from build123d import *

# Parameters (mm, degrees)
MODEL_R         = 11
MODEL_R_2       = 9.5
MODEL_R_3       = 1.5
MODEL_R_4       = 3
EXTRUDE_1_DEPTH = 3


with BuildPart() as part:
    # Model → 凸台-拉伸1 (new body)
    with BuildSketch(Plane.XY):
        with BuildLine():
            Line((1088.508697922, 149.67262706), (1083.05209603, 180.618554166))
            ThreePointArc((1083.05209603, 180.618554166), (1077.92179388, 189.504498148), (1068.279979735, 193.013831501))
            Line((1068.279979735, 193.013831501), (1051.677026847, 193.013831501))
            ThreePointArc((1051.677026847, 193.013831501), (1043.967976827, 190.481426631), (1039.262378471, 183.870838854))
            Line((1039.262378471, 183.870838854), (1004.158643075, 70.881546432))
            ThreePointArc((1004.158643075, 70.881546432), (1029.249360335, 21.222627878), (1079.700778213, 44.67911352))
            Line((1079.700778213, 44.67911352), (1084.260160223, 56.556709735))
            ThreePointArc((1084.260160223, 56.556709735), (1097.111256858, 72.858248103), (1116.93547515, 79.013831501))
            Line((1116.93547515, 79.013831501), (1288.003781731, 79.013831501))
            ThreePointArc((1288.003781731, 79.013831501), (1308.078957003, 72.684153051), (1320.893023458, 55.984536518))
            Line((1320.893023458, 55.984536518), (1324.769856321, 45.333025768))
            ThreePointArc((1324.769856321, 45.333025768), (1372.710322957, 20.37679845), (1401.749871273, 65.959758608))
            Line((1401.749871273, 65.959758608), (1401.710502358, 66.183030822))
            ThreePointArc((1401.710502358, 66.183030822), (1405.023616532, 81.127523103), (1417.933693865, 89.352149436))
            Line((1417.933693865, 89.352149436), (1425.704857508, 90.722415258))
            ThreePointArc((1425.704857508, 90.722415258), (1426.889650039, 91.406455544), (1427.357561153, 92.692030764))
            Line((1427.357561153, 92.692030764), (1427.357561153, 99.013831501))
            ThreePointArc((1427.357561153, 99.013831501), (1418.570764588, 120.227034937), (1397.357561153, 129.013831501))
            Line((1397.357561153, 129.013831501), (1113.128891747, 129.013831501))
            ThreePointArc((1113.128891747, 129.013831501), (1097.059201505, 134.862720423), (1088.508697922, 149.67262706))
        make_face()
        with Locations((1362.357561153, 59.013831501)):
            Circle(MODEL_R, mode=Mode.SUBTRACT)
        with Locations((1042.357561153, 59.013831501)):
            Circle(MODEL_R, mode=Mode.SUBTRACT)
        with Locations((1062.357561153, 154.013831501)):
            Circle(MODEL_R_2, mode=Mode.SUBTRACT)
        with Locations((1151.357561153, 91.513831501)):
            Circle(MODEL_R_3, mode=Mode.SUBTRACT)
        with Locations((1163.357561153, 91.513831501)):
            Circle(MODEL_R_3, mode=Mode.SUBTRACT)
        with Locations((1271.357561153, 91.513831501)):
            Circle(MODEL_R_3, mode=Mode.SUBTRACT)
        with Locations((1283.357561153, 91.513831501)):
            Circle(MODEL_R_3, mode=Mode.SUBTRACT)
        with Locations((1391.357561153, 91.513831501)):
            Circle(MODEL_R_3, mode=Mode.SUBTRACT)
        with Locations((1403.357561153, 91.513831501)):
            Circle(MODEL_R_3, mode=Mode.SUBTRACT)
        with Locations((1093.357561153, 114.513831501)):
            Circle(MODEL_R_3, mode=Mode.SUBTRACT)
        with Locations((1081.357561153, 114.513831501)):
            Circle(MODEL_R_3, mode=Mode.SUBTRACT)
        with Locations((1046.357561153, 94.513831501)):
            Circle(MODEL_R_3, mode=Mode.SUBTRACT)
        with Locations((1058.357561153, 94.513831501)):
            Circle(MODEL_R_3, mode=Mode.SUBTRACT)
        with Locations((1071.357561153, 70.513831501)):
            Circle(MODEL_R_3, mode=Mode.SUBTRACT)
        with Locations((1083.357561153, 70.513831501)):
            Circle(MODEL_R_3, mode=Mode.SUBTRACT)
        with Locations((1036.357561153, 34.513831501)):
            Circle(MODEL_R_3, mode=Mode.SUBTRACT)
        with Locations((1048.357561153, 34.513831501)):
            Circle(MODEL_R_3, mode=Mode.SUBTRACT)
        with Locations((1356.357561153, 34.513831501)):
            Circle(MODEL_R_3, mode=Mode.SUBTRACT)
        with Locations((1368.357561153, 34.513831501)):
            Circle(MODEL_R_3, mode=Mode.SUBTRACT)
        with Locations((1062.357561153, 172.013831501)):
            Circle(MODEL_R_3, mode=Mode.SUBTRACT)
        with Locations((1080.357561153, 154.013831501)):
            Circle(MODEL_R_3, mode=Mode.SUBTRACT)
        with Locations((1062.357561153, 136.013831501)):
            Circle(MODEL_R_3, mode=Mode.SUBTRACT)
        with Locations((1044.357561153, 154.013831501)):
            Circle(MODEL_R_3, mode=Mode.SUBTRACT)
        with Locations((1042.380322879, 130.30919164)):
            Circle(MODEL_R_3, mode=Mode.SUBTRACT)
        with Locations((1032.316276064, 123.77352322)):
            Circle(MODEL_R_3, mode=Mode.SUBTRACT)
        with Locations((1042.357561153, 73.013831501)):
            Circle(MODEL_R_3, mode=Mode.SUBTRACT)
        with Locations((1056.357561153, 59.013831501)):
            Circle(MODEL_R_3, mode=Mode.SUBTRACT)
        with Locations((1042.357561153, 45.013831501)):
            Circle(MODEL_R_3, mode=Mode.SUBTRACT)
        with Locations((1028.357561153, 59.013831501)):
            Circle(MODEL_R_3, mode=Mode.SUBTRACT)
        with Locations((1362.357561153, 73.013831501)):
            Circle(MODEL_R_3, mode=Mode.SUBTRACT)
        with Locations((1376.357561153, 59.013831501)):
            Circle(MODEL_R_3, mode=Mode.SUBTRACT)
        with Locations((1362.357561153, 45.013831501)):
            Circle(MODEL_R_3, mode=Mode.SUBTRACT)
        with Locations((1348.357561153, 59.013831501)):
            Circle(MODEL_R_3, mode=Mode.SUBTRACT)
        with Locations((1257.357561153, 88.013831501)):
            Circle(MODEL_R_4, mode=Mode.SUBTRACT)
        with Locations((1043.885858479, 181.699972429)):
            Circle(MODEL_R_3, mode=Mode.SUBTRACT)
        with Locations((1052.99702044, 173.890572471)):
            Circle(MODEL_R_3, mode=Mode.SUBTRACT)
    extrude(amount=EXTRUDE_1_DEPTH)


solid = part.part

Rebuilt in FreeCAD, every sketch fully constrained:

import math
import FreeCAD as App
import Part
import Sketcher
Q = App.Units.Quantity

doc = App.newDocument("Part")
params = doc.addObject("Spreadsheet::Sheet", "Params")
for row, (alias, value) in enumerate([
    ("sketch1_diameter", "3 mm"),
    ("sketch1_diameter2", "22 mm"),
    ("sketch1_diameter3", "6 mm"),
    ("sketch1_diameter4", "19 mm"),
    ("sketch1_radius", "15 mm"),
    ("pad1_length", "3 mm"),
], start=1):
    params.set(f"A{row}", alias)
    params.set(f"B{row}", "=" + value)
    params.setAlias(f"B{row}", alias)

body = doc.addObject("PartDesign::Body", "Body")

sketch1 = body.newObject("Sketcher::SketchObject", "Sketch")
sketch1.AttachmentSupport = (doc.getObject("XY_Plane"), [""])
sketch1.MapMode = "FlatFace"
sketch1.addGeometry([
    Part.LineSegment(App.Vector(1088.51, 149.67, 0), App.Vector(1083.05, 180.62, 0)),
    Part.ArcOfCircle(Part.Circle(App.Vector(1068.28, 178.01, 0), App.Vector(0, 0, 1), 15), math.radians(10), math.radians(90)),
    Part.LineSegment(App.Vector(1068.28, 193.01, 0), App.Vector(1051.68, 193.01, 0)),
    Part.ArcOfCircle(Part.Circle(App.Vector(1051.68, 180.01, 0), App.Vector(0, 0, 1), 13), math.radians(90), math.radians(163)),
    Part.LineSegment(App.Vector(1039.26, 183.87, 0), App.Vector(1004.16, 70.88, 0)),
    Part.ArcOfCircle(Part.Circle(App.Vector(1042.36, 59.01, 0), App.Vector(0, 0, 1), 40), math.radians(163), math.radians(339)),
    Part.LineSegment(App.Vector(1079.7, 44.68, 0), App.Vector(1084.26, 56.56, 0)),
    Part.ArcOfCircle(Part.Circle(App.Vector(1116.94, 44.01, 0), App.Vector(0, 0, 1), 35), math.radians(90), math.radians(159)),
    Part.LineSegment(App.Vector(1116.94, 79.01, 0), App.Vector(1288, 79.01, 0)),
    Part.ArcOfCircle(Part.Circle(App.Vector(1288, 44.01, 0), App.Vector(0, 0, 1), 35), math.radians(20), math.radians(90)),
    Part.LineSegment(App.Vector(1320.89, 55.98, 0), App.Vector(1324.77, 45.33, 0)),
    Part.ArcOfCircle(Part.Circle(App.Vector(1362.36, 59.01, 0), App.Vector(0, 0, 1), 40), math.radians(-160), math.radians(10)),
    Part.LineSegment(App.Vector(1401.75, 65.96, 0), App.Vector(1401.71, 66.18, 0)),
    Part.ArcOfCircle(Part.Circle(App.Vector(1421.41, 69.66, 0), App.Vector(0, 0, 1), 20), math.radians(100), math.radians(190)),
    Part.LineSegment(App.Vector(1417.93, 89.35, 0), App.Vector(1425.7, 90.72, 0)),
    Part.ArcOfCircle(Part.Circle(App.Vector(1425.36, 92.69, 0), App.Vector(0, 0, 1), 2), math.radians(-80), math.radians(0)),
    Part.LineSegment(App.Vector(1427.36, 92.69, 0), App.Vector(1427.36, 99.01, 0)),
    Part.ArcOfCircle(Part.Circle(App.Vector(1397.36, 99.01, 0), App.Vector(0, 0, 1), 30), math.radians(0), math.radians(90)),
    Part.LineSegment(App.Vector(1397.36, 129.01, 0), App.Vector(1113.13, 129.01, 0)),
    Part.ArcOfCircle(Part.Circle(App.Vector(1113.13, 154.01, 0), App.Vector(0, 0, 1), 25), math.radians(-170), math.radians(-90)),
    Part.Circle(App.Vector(1036.36, 34.51, 0), App.Vector(0, 0, 1), 1.5),
    Part.Circle(App.Vector(1048.36, 34.51, 0), App.Vector(0, 0, 1), 1.5),
    Part.Circle(App.Vector(1042.36, 45.01, 0), App.Vector(0, 0, 1), 1.5),
    Part.Circle(App.Vector(1028.36, 59.01, 0), App.Vector(0, 0, 1), 1.5),
    Part.Circle(App.Vector(1042.36, 59.01, 0), App.Vector(0, 0, 1), 11),
    Part.Circle(App.Vector(1056.36, 59.01, 0), App.Vector(0, 0, 1), 1.5),
    Part.Circle(App.Vector(1071.36, 70.51, 0), App.Vector(0, 0, 1), 1.5),
    Part.Circle(App.Vector(1083.36, 70.51, 0), App.Vector(0, 0, 1), 1.5),
    Part.Circle(App.Vector(1042.36, 73.01, 0), App.Vector(0, 0, 1), 1.5),
    Part.Circle(App.Vector(1046.36, 94.51, 0), App.Vector(0, 0, 1), 1.5),
    Part.Circle(App.Vector(1058.36, 94.51, 0), App.Vector(0, 0, 1), 1.5),
    Part.Circle(App.Vector(1151.36, 91.51, 0), App.Vector(0, 0, 1), 1.5),
    Part.Circle(App.Vector(1163.36, 91.51, 0), App.Vector(0, 0, 1), 1.5),
    Part.Circle(App.Vector(1356.36, 34.51, 0), App.Vector(0, 0, 1), 1.5),
    Part.Circle(App.Vector(1368.36, 34.51, 0), App.Vector(0, 0, 1), 1.5),
    Part.Circle(App.Vector(1362.36, 45.01, 0), App.Vector(0, 0, 1), 1.5),
    Part.Circle(App.Vector(1348.36, 59.01, 0), App.Vector(0, 0, 1), 1.5),
    Part.Circle(App.Vector(1362.36, 59.01, 0), App.Vector(0, 0, 1), 11),
    Part.Circle(App.Vector(1376.36, 59.01, 0), App.Vector(0, 0, 1), 1.5),
    Part.Circle(App.Vector(1257.36, 88.01, 0), App.Vector(0, 0, 1), 3),
    Part.Circle(App.Vector(1271.36, 91.51, 0), App.Vector(0, 0, 1), 1.5),
    Part.Circle(App.Vector(1283.36, 91.51, 0), App.Vector(0, 0, 1), 1.5),
    Part.Circle(App.Vector(1362.36, 73.01, 0), App.Vector(0, 0, 1), 1.5),
    Part.Circle(App.Vector(1391.36, 91.51, 0), App.Vector(0, 0, 1), 1.5),
    Part.Circle(App.Vector(1403.36, 91.51, 0), App.Vector(0, 0, 1), 1.5),
    Part.Circle(App.Vector(1032.32, 123.77, 0), App.Vector(0, 0, 1), 1.5),
    Part.Circle(App.Vector(1081.36, 114.51, 0), App.Vector(0, 0, 1), 1.5),
    Part.Circle(App.Vector(1093.36, 114.51, 0), App.Vector(0, 0, 1), 1.5),
    Part.Circle(App.Vector(1042.38, 130.31, 0), App.Vector(0, 0, 1), 1.5),
    Part.Circle(App.Vector(1062.36, 136.01, 0), App.Vector(0, 0, 1), 1.5),
    Part.Circle(App.Vector(1044.36, 154.01, 0), App.Vector(0, 0, 1), 1.5),
    Part.Circle(App.Vector(1062.36, 154.01, 0), App.Vector(0, 0, 1), 9.5),
    Part.Circle(App.Vector(1080.36, 154.01, 0), App.Vector(0, 0, 1), 1.5),
    Part.Circle(App.Vector(1062.36, 172.01, 0), App.Vector(0, 0, 1), 1.5),
    Part.Circle(App.Vector(1043.89, 181.7, 0), App.Vector(0, 0, 1), 1.5),
    Part.Circle(App.Vector(1053, 173.89, 0), App.Vector(0, 0, 1), 1.5),
], False)
sketch1.addConstraint([
    Sketcher.Constraint("Tangent", 0, 2, 1, 1),
    Sketcher.Constraint("Tangent", 1, 2, 2, 1),
    Sketcher.Constraint("Tangent", 2, 2, 3, 1),
    Sketcher.Constraint("Tangent", 3, 2, 4, 1),
    Sketcher.Constraint("Tangent", 4, 2, 5, 1),
    Sketcher.Constraint("Tangent", 5, 2, 6, 1),
    Sketcher.Constraint("Tangent", 6, 2, 7, 2),
    Sketcher.Constraint("Tangent", 7, 1, 8, 1),
    Sketcher.Constraint("Tangent", 8, 2, 9, 2),
    Sketcher.Constraint("Tangent", 9, 1, 10, 1),
    Sketcher.Constraint("Tangent", 10, 2, 11, 1),
    Sketcher.Constraint("Tangent", 11, 2, 12, 1),
    Sketcher.Constraint("Tangent", 12, 2, 13, 2),
    Sketcher.Constraint("Tangent", 13, 1, 14, 1),
    Sketcher.Constraint("Tangent", 14, 2, 15, 1),
    Sketcher.Constraint("Tangent", 15, 2, 16, 1),
    Sketcher.Constraint("Tangent", 16, 2, 17, 1),
    Sketcher.Constraint("Tangent", 17, 2, 18, 1),
    Sketcher.Constraint("Tangent", 18, 2, 19, 2),
    Sketcher.Constraint("Tangent", 19, 1, 0, 1),
    Sketcher.Constraint("Horizontal", 2),
    Sketcher.Constraint("Horizontal", 8),
    Sketcher.Constraint("Vertical", 16),
    Sketcher.Constraint("Horizontal", 18),
    Sketcher.Constraint("Coincident", 24, 3, 5, 3),
    Sketcher.Constraint("Coincident", 37, 3, 11, 3),
    Sketcher.Constraint("Equal", 7, 9),
    Sketcher.Constraint("Equal", 5, 11),
    Sketcher.Constraint("Equal", 20, 21),
    Sketcher.Constraint("Equal", 21, 22),
    Sketcher.Constraint("Equal", 22, 23),
    Sketcher.Constraint("Equal", 23, 25),
    Sketcher.Constraint("Equal", 25, 26),
    Sketcher.Constraint("Equal", 26, 27),
    Sketcher.Constraint("Equal", 27, 28),
    Sketcher.Constraint("Equal", 28, 29),
    Sketcher.Constraint("Equal", 29, 30),
    Sketcher.Constraint("Equal", 30, 31),
    Sketcher.Constraint("Equal", 31, 32),
    Sketcher.Constraint("Equal", 32, 33),
    Sketcher.Constraint("Equal", 33, 34),
    Sketcher.Constraint("Equal", 34, 35),
    Sketcher.Constraint("Equal", 35, 36),
    Sketcher.Constraint("Equal", 24, 37),
    Sketcher.Constraint("Equal", 36, 38),
    Sketcher.Constraint("Equal", 38, 40),
    Sketcher.Constraint("Equal", 40, 41),
    Sketcher.Constraint("Equal", 41, 42),
    Sketcher.Constraint("Equal", 42, 43),
    Sketcher.Constraint("Equal", 43, 44),
    Sketcher.Constraint("Equal", 44, 45),
    Sketcher.Constraint("Equal", 45, 46),
    Sketcher.Constraint("Equal", 46, 47),
    Sketcher.Constraint("Equal", 47, 48),
    Sketcher.Constraint("Equal", 48, 49),
    Sketcher.Constraint("Equal", 49, 50),
    Sketcher.Constraint("Equal", 50, 52),
    Sketcher.Constraint("Equal", 52, 53),
    Sketcher.Constraint("Equal", 53, 54),
    Sketcher.Constraint("Equal", 54, 55),
    Sketcher.Constraint("Parallel", 0, 12),
    Sketcher.Constraint("Perpendicular", 12, 14),
    Sketcher.Constraint("Horizontal", 5, 3, 11, 3),
    Sketcher.Constraint("Horizontal", 20, 3, 21, 3),
    Sketcher.Constraint("Horizontal", 11, 3, 23, 3),
    Sketcher.Constraint("Horizontal", 24, 3, 25, 3),
    Sketcher.Constraint("Horizontal", 26, 3, 27, 3),
    Sketcher.Constraint("Horizontal", 29, 3, 30, 3),
    Sketcher.Constraint("Horizontal", 31, 3, 32, 3),
    Sketcher.Constraint("Horizontal", 21, 3, 33, 3),
    Sketcher.Constraint("Horizontal", 33, 3, 34, 3),
    Sketcher.Constraint("Horizontal", 22, 3, 35, 3),
    Sketcher.Constraint("Horizontal", 25, 3, 36, 3),
    Sketcher.Constraint("Horizontal", 37, 3, 38, 3),
    Sketcher.Constraint("Horizontal", 32, 3, 40, 3),
    Sketcher.Constraint("Horizontal", 40, 3, 41, 3),
    Sketcher.Constraint("Horizontal", 28, 3, 42, 3),
    Sketcher.Constraint("Horizontal", 41, 3, 43, 3),
    Sketcher.Constraint("Horizontal", 43, 3, 44, 3),
    Sketcher.Constraint("Horizontal", 46, 3, 47, 3),
    Sketcher.Constraint("Horizontal", 19, 3, 50, 3),
    Sketcher.Constraint("Horizontal", 50, 3, 51, 3),
    Sketcher.Constraint("Horizontal", 51, 3, 52, 3),
    Sketcher.Constraint("Vertical", 5, 3, 22, 3),
    Sketcher.Constraint("Vertical", 24, 3, 28, 3),
    Sketcher.Constraint("Vertical", 11, 3, 35, 3),
    Sketcher.Constraint("Vertical", 37, 3, 42, 3),
    Sketcher.Constraint("Vertical", 49, 3, 51, 3),
    Sketcher.Constraint("Vertical", 51, 3, 53, 3),
    Sketcher.Constraint("Diameter", 20, Q("3 mm")),
    Sketcher.Constraint("Diameter", 24, Q("22 mm")),
    Sketcher.Constraint("Diameter", 39, Q("6 mm")),
    Sketcher.Constraint("Diameter", 51, Q("19 mm")),
    Sketcher.Constraint("Radius", 1, Q("15 mm")),
    Sketcher.Constraint("Radius", 3, Q("13 mm")),
    Sketcher.Constraint("Radius", 5, Q("40 mm")),
    Sketcher.Constraint("Radius", 7, Q("35 mm")),
    Sketcher.Constraint("Radius", 13, Q("20 mm")),
    Sketcher.Constraint("Radius", 15, Q("2 mm")),
    Sketcher.Constraint("Radius", 17, Q("30 mm")),
    Sketcher.Constraint("Radius", 19, Q("25 mm")),
    Sketcher.Constraint("Angle", 0, Q("100 deg")),
    Sketcher.Constraint("Angle", 6, Q("69 deg")),
    Sketcher.Constraint("Angle", 10, Q("-70 deg")),
    Sketcher.Constraint("DistanceY", 16, 1, 16, 2, Q("6.321801 mm")),
    Sketcher.Constraint("Distance", 10, Q("11.335101 mm")),
    Sketcher.Constraint("DistanceX", 18, 2, 18, 1, Q("284.228669 mm")),
    Sketcher.Constraint("DistanceX", 2, 2, 2, 1, Q("16.602953 mm")),
    Sketcher.Constraint("DistanceX", 8, 1, 8, 2, Q("171.068307 mm")),
    Sketcher.Constraint("DistanceX", -1, 1, 1, 3, Q("1068.27998 mm")),
    Sketcher.Constraint("DistanceY", -1, 1, 1, 3, Q("178.013832 mm")),
    Sketcher.Constraint("DistanceX", -1, 1, 5, 3, Q("1042.357561 mm")),
    Sketcher.Constraint("DistanceY", -1, 1, 5, 3, Q("59.013832 mm")),
    Sketcher.Constraint("DistanceX", -1, 1, 15, 3, Q("1425.357561 mm")),
    Sketcher.Constraint("DistanceX", -1, 1, 20, 3, Q("1036.357561 mm")),
    Sketcher.Constraint("DistanceY", -1, 1, 20, 3, Q("34.513832 mm")),
    Sketcher.Constraint("DistanceX", -1, 1, 21, 3, Q("1048.357561 mm")),
    Sketcher.Constraint("DistanceY", -1, 1, 22, 3, Q("45.013832 mm")),
    Sketcher.Constraint("DistanceX", -1, 1, 23, 3, Q("1028.357561 mm")),
    Sketcher.Constraint("DistanceX", -1, 1, 25, 3, Q("1056.357561 mm")),
    Sketcher.Constraint("DistanceX", -1, 1, 26, 3, Q("1071.357561 mm")),
    Sketcher.Constraint("DistanceY", -1, 1, 26, 3, Q("70.513832 mm")),
    Sketcher.Constraint("DistanceX", -1, 1, 27, 3, Q("1083.357561 mm")),
    Sketcher.Constraint("DistanceY", -1, 1, 28, 3, Q("73.013832 mm")),
    Sketcher.Constraint("DistanceX", -1, 1, 29, 3, Q("1046.357561 mm")),
    Sketcher.Constraint("DistanceY", -1, 1, 29, 3, Q("94.513832 mm")),
    Sketcher.Constraint("DistanceX", -1, 1, 30, 3, Q("1058.357561 mm")),
    Sketcher.Constraint("DistanceX", -1, 1, 31, 3, Q("1151.357561 mm")),
    Sketcher.Constraint("DistanceY", -1, 1, 31, 3, Q("91.513832 mm")),
    Sketcher.Constraint("DistanceX", -1, 1, 32, 3, Q("1163.357561 mm")),
    Sketcher.Constraint("DistanceX", -1, 1, 33, 3, Q("1356.357561 mm")),
    Sketcher.Constraint("DistanceX", -1, 1, 34, 3, Q("1368.357561 mm")),
    Sketcher.Constraint("DistanceX", -1, 1, 36, 3, Q("1348.357561 mm")),
    Sketcher.Constraint("DistanceX", -1, 1, 38, 3, Q("1376.357561 mm")),
    Sketcher.Constraint("DistanceX", -1, 1, 39, 3, Q("1257.357561 mm")),
    Sketcher.Constraint("DistanceY", -1, 1, 39, 3, Q("88.013832 mm")),
    Sketcher.Constraint("DistanceX", -1, 1, 40, 3, Q("1271.357561 mm")),
    Sketcher.Constraint("DistanceX", -1, 1, 41, 3, Q("1283.357561 mm")),
    Sketcher.Constraint("DistanceX", -1, 1, 43, 3, Q("1391.357561 mm")),
    Sketcher.Constraint("DistanceX", -1, 1, 44, 3, Q("1403.357561 mm")),
    Sketcher.Constraint("DistanceX", -1, 1, 46, 3, Q("1081.357561 mm")),
    Sketcher.Constraint("DistanceY", -1, 1, 46, 3, Q("114.513832 mm")),
    Sketcher.Constraint("DistanceX", -1, 1, 47, 3, Q("1093.357561 mm")),
    Sketcher.Constraint("DistanceY", -1, 1, 48, 3, Q("130.309192 mm")),
    Sketcher.Constraint("DistanceX", -1, 1, 49, 3, Q("1062.357561 mm")),
    Sketcher.Constraint("DistanceY", -1, 1, 49, 3, Q("136.013832 mm")),
    Sketcher.Constraint("DistanceX", -1, 1, 50, 3, Q("1044.357561 mm")),
    Sketcher.Constraint("DistanceX", -1, 1, 52, 3, Q("1080.357561 mm")),
    Sketcher.Constraint("DistanceY", -1, 1, 53, 3, Q("172.013832 mm")),
    Sketcher.Constraint("DistanceX", -1, 1, 54, 3, Q("1043.885858 mm")),
    Sketcher.Constraint("DistanceX", -1, 1, 55, 3, Q("1052.99702 mm")),
    Sketcher.Constraint("DistanceX", -1, 1, 45, 3, Q("1032.316276 mm")),
    Sketcher.Constraint("DistanceY", -1, 1, 45, 3, Q("123.773523 mm")),
    Sketcher.Constraint("DistanceX", -1, 1, 48, 3, Q("1042.380323 mm")),
    Sketcher.Constraint("DistanceY", -1, 1, 54, 3, Q("181.699972 mm")),
    Sketcher.Constraint("DistanceY", -1, 1, 55, 3, Q("173.890572 mm")),
])
sketch1.setExpression("Constraints[89]", "Params.sketch1_diameter")
sketch1.setExpression("Constraints[90]", "Params.sketch1_diameter2")
sketch1.setExpression("Constraints[91]", "Params.sketch1_diameter3")
sketch1.setExpression("Constraints[92]", "Params.sketch1_diameter4")
sketch1.setExpression("Constraints[93]", "Params.sketch1_radius")
pad1 = body.newObject("PartDesign::Pad", "Pad")
pad1.Profile = sketch1
pad1.setExpression("Length", "Params.pad1_length")

doc.recompute()
